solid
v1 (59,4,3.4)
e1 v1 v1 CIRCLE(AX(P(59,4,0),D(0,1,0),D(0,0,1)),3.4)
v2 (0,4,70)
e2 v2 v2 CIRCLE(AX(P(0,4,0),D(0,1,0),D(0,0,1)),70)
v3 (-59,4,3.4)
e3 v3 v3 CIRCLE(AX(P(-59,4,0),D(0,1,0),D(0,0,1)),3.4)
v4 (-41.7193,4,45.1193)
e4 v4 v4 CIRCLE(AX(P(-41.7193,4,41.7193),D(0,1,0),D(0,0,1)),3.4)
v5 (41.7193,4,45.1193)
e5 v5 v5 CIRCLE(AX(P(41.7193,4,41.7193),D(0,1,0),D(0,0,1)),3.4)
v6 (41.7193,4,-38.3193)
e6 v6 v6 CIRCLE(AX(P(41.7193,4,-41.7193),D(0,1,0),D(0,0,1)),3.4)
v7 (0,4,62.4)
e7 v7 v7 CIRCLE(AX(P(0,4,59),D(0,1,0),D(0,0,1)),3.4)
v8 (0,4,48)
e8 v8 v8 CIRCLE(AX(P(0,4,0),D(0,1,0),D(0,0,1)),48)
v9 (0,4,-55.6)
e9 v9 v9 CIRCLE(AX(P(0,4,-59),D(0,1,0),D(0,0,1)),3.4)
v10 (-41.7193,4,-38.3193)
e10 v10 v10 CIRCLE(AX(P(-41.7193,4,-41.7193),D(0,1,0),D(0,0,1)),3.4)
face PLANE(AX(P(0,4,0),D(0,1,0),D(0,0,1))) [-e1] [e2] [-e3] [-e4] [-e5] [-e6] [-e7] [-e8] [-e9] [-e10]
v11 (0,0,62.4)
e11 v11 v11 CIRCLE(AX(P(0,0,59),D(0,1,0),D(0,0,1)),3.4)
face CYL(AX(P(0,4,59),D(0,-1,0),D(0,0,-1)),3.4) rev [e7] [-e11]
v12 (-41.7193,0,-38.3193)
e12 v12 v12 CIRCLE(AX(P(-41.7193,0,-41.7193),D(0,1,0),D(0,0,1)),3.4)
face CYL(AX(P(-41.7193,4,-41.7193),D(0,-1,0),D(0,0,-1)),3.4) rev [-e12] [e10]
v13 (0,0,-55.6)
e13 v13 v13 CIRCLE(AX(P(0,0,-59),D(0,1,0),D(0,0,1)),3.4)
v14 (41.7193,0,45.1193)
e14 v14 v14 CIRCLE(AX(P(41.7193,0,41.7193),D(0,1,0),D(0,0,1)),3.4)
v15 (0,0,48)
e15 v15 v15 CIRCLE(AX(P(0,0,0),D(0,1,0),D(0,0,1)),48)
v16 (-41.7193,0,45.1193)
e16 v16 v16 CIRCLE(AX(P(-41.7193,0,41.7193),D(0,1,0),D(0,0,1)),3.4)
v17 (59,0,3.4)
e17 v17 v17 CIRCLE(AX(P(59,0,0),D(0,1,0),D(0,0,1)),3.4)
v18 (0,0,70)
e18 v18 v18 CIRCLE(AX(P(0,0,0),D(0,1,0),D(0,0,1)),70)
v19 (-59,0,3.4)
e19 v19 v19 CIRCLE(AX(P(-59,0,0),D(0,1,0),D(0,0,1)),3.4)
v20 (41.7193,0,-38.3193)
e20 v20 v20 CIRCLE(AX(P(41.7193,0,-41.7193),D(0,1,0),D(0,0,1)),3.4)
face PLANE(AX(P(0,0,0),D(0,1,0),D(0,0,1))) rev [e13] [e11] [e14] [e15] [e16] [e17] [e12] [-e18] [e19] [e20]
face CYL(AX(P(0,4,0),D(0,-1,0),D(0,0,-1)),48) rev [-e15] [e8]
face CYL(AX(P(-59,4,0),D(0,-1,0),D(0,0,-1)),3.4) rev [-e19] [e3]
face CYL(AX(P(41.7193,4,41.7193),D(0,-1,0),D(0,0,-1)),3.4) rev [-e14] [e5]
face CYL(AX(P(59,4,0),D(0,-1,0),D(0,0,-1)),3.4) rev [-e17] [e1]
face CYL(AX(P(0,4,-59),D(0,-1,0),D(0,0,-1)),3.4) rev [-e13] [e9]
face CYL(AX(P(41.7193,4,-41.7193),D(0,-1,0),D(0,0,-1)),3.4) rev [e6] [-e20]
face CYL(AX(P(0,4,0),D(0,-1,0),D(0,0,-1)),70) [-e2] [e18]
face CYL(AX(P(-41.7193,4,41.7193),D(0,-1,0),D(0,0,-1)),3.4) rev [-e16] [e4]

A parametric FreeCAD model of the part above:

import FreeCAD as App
import Part
import Sketcher
from FreeCAD import Vector

doc = App.newDocument("Part")
body = doc.addObject("PartDesign::Body", "Body")

# Sketch on XZ plane
sketch1 = body.newObject("Sketcher::SketchObject", "Sketch")
sketch1.AttachmentSupport = (doc.getObject("XZ_Plane"), [""])
sketch1.MapMode = "FlatFace"
sketch1.addGeometry(Part.Circle(Vector(0, 0, 0), Vector(0, 0, 1), 70), False)
sketch1.addGeometry(Part.Circle(Vector(-41.7193, -41.7193, 0), Vector(0, 0, 1), 3.4), False)
sketch1.addGeometry(Part.Circle(Vector(-59, 0, 0), Vector(0, 0, 1), 3.4), False)
sketch1.addGeometry(Part.Circle(Vector(-41.7193, 41.7193, 0), Vector(0, 0, 1), 3.4), False)
sketch1.addGeometry(Part.Circle(Vector(0, -59, 0), Vector(0, 0, 1), 3.4), False)
sketch1.addGeometry(Part.Circle(Vector(41.7193, -41.7193, 0), Vector(0, 0, 1), 3.4), False)
sketch1.addGeometry(Part.Circle(Vector(0, 0, 0), Vector(0, 0, 1), 48), False)
sketch1.addGeometry(Part.Circle(Vector(0, 59, 0), Vector(0, 0, 1), 3.4), False)
sketch1.addGeometry(Part.Circle(Vector(59, 0, 0), Vector(0, 0, 1), 3.4), False)
sketch1.addGeometry(Part.Circle(Vector(41.7193, 41.7193, 0), Vector(0, 0, 1), 3.4), False)
sketch1.addConstraint(Sketcher.Constraint("Coincident", 0, 3, -1, 1))
sketch1.addConstraint(Sketcher.Constraint("Coincident", 6, 3, -1, 1))
sketch1.addConstraint(Sketcher.Constraint("Equal", 1, 2))
sketch1.addConstraint(Sketcher.Constraint("Equal", 2, 3))
sketch1.addConstraint(Sketcher.Constraint("Equal", 3, 4))
sketch1.addConstraint(Sketcher.Constraint("Equal", 4, 5))
sketch1.addConstraint(Sketcher.Constraint("Equal", 5, 7))
sketch1.addConstraint(Sketcher.Constraint("Equal", 7, 8))
sketch1.addConstraint(Sketcher.Constraint("Equal", 8, 9))
sketch1.addConstraint(Sketcher.Constraint("Symmetric", 3, 3, 5, 3, -1, 1))
sketch1.addConstraint(Sketcher.Constraint("Symmetric", 4, 3, 7, 3, -1, 1))
sketch1.addConstraint(Sketcher.Constraint("Symmetric", 2, 3, 8, 3, -1, 1))
sketch1.addConstraint(Sketcher.Constraint("Symmetric", 1, 3, 9, 3, -1, 1))
sketch1.addConstraint(Sketcher.Constraint("Symmetric", 1, 3, 5, 3, -2))
sketch1.addConstraint(Sketcher.Constraint("PointOnObject", 2, 3, -1))
sketch1.addConstraint(Sketcher.Constraint("PointOnObject", 4, 3, -2))
sketch1.addConstraint(Sketcher.Constraint("Diameter", 0, 140.0))
sketch1.addConstraint(Sketcher.Constraint("Diameter", 6, 96.0))
sketch1.addConstraint(Sketcher.Constraint("Diameter", 1, 6.8))
sketch1.addConstraint(Sketcher.Constraint("DistanceX", 2, 3, -1, 1, 59.0))
sketch1.addConstraint(Sketcher.Constraint("DistanceY", 4, 3, -1, 1, 59.0))
sketch1.addConstraint(Sketcher.Constraint("DistanceX", 1, 3, -1, 1, 41.7193))
sketch1.addConstraint(Sketcher.Constraint("DistanceY", 1, 3, -1, 1, 41.7193))
pad1 = body.newObject("PartDesign::Pad", "Pad")
pad1.Profile = sketch1
pad1.Length = 4
pad1.Reversed = True

doc.recompute()
